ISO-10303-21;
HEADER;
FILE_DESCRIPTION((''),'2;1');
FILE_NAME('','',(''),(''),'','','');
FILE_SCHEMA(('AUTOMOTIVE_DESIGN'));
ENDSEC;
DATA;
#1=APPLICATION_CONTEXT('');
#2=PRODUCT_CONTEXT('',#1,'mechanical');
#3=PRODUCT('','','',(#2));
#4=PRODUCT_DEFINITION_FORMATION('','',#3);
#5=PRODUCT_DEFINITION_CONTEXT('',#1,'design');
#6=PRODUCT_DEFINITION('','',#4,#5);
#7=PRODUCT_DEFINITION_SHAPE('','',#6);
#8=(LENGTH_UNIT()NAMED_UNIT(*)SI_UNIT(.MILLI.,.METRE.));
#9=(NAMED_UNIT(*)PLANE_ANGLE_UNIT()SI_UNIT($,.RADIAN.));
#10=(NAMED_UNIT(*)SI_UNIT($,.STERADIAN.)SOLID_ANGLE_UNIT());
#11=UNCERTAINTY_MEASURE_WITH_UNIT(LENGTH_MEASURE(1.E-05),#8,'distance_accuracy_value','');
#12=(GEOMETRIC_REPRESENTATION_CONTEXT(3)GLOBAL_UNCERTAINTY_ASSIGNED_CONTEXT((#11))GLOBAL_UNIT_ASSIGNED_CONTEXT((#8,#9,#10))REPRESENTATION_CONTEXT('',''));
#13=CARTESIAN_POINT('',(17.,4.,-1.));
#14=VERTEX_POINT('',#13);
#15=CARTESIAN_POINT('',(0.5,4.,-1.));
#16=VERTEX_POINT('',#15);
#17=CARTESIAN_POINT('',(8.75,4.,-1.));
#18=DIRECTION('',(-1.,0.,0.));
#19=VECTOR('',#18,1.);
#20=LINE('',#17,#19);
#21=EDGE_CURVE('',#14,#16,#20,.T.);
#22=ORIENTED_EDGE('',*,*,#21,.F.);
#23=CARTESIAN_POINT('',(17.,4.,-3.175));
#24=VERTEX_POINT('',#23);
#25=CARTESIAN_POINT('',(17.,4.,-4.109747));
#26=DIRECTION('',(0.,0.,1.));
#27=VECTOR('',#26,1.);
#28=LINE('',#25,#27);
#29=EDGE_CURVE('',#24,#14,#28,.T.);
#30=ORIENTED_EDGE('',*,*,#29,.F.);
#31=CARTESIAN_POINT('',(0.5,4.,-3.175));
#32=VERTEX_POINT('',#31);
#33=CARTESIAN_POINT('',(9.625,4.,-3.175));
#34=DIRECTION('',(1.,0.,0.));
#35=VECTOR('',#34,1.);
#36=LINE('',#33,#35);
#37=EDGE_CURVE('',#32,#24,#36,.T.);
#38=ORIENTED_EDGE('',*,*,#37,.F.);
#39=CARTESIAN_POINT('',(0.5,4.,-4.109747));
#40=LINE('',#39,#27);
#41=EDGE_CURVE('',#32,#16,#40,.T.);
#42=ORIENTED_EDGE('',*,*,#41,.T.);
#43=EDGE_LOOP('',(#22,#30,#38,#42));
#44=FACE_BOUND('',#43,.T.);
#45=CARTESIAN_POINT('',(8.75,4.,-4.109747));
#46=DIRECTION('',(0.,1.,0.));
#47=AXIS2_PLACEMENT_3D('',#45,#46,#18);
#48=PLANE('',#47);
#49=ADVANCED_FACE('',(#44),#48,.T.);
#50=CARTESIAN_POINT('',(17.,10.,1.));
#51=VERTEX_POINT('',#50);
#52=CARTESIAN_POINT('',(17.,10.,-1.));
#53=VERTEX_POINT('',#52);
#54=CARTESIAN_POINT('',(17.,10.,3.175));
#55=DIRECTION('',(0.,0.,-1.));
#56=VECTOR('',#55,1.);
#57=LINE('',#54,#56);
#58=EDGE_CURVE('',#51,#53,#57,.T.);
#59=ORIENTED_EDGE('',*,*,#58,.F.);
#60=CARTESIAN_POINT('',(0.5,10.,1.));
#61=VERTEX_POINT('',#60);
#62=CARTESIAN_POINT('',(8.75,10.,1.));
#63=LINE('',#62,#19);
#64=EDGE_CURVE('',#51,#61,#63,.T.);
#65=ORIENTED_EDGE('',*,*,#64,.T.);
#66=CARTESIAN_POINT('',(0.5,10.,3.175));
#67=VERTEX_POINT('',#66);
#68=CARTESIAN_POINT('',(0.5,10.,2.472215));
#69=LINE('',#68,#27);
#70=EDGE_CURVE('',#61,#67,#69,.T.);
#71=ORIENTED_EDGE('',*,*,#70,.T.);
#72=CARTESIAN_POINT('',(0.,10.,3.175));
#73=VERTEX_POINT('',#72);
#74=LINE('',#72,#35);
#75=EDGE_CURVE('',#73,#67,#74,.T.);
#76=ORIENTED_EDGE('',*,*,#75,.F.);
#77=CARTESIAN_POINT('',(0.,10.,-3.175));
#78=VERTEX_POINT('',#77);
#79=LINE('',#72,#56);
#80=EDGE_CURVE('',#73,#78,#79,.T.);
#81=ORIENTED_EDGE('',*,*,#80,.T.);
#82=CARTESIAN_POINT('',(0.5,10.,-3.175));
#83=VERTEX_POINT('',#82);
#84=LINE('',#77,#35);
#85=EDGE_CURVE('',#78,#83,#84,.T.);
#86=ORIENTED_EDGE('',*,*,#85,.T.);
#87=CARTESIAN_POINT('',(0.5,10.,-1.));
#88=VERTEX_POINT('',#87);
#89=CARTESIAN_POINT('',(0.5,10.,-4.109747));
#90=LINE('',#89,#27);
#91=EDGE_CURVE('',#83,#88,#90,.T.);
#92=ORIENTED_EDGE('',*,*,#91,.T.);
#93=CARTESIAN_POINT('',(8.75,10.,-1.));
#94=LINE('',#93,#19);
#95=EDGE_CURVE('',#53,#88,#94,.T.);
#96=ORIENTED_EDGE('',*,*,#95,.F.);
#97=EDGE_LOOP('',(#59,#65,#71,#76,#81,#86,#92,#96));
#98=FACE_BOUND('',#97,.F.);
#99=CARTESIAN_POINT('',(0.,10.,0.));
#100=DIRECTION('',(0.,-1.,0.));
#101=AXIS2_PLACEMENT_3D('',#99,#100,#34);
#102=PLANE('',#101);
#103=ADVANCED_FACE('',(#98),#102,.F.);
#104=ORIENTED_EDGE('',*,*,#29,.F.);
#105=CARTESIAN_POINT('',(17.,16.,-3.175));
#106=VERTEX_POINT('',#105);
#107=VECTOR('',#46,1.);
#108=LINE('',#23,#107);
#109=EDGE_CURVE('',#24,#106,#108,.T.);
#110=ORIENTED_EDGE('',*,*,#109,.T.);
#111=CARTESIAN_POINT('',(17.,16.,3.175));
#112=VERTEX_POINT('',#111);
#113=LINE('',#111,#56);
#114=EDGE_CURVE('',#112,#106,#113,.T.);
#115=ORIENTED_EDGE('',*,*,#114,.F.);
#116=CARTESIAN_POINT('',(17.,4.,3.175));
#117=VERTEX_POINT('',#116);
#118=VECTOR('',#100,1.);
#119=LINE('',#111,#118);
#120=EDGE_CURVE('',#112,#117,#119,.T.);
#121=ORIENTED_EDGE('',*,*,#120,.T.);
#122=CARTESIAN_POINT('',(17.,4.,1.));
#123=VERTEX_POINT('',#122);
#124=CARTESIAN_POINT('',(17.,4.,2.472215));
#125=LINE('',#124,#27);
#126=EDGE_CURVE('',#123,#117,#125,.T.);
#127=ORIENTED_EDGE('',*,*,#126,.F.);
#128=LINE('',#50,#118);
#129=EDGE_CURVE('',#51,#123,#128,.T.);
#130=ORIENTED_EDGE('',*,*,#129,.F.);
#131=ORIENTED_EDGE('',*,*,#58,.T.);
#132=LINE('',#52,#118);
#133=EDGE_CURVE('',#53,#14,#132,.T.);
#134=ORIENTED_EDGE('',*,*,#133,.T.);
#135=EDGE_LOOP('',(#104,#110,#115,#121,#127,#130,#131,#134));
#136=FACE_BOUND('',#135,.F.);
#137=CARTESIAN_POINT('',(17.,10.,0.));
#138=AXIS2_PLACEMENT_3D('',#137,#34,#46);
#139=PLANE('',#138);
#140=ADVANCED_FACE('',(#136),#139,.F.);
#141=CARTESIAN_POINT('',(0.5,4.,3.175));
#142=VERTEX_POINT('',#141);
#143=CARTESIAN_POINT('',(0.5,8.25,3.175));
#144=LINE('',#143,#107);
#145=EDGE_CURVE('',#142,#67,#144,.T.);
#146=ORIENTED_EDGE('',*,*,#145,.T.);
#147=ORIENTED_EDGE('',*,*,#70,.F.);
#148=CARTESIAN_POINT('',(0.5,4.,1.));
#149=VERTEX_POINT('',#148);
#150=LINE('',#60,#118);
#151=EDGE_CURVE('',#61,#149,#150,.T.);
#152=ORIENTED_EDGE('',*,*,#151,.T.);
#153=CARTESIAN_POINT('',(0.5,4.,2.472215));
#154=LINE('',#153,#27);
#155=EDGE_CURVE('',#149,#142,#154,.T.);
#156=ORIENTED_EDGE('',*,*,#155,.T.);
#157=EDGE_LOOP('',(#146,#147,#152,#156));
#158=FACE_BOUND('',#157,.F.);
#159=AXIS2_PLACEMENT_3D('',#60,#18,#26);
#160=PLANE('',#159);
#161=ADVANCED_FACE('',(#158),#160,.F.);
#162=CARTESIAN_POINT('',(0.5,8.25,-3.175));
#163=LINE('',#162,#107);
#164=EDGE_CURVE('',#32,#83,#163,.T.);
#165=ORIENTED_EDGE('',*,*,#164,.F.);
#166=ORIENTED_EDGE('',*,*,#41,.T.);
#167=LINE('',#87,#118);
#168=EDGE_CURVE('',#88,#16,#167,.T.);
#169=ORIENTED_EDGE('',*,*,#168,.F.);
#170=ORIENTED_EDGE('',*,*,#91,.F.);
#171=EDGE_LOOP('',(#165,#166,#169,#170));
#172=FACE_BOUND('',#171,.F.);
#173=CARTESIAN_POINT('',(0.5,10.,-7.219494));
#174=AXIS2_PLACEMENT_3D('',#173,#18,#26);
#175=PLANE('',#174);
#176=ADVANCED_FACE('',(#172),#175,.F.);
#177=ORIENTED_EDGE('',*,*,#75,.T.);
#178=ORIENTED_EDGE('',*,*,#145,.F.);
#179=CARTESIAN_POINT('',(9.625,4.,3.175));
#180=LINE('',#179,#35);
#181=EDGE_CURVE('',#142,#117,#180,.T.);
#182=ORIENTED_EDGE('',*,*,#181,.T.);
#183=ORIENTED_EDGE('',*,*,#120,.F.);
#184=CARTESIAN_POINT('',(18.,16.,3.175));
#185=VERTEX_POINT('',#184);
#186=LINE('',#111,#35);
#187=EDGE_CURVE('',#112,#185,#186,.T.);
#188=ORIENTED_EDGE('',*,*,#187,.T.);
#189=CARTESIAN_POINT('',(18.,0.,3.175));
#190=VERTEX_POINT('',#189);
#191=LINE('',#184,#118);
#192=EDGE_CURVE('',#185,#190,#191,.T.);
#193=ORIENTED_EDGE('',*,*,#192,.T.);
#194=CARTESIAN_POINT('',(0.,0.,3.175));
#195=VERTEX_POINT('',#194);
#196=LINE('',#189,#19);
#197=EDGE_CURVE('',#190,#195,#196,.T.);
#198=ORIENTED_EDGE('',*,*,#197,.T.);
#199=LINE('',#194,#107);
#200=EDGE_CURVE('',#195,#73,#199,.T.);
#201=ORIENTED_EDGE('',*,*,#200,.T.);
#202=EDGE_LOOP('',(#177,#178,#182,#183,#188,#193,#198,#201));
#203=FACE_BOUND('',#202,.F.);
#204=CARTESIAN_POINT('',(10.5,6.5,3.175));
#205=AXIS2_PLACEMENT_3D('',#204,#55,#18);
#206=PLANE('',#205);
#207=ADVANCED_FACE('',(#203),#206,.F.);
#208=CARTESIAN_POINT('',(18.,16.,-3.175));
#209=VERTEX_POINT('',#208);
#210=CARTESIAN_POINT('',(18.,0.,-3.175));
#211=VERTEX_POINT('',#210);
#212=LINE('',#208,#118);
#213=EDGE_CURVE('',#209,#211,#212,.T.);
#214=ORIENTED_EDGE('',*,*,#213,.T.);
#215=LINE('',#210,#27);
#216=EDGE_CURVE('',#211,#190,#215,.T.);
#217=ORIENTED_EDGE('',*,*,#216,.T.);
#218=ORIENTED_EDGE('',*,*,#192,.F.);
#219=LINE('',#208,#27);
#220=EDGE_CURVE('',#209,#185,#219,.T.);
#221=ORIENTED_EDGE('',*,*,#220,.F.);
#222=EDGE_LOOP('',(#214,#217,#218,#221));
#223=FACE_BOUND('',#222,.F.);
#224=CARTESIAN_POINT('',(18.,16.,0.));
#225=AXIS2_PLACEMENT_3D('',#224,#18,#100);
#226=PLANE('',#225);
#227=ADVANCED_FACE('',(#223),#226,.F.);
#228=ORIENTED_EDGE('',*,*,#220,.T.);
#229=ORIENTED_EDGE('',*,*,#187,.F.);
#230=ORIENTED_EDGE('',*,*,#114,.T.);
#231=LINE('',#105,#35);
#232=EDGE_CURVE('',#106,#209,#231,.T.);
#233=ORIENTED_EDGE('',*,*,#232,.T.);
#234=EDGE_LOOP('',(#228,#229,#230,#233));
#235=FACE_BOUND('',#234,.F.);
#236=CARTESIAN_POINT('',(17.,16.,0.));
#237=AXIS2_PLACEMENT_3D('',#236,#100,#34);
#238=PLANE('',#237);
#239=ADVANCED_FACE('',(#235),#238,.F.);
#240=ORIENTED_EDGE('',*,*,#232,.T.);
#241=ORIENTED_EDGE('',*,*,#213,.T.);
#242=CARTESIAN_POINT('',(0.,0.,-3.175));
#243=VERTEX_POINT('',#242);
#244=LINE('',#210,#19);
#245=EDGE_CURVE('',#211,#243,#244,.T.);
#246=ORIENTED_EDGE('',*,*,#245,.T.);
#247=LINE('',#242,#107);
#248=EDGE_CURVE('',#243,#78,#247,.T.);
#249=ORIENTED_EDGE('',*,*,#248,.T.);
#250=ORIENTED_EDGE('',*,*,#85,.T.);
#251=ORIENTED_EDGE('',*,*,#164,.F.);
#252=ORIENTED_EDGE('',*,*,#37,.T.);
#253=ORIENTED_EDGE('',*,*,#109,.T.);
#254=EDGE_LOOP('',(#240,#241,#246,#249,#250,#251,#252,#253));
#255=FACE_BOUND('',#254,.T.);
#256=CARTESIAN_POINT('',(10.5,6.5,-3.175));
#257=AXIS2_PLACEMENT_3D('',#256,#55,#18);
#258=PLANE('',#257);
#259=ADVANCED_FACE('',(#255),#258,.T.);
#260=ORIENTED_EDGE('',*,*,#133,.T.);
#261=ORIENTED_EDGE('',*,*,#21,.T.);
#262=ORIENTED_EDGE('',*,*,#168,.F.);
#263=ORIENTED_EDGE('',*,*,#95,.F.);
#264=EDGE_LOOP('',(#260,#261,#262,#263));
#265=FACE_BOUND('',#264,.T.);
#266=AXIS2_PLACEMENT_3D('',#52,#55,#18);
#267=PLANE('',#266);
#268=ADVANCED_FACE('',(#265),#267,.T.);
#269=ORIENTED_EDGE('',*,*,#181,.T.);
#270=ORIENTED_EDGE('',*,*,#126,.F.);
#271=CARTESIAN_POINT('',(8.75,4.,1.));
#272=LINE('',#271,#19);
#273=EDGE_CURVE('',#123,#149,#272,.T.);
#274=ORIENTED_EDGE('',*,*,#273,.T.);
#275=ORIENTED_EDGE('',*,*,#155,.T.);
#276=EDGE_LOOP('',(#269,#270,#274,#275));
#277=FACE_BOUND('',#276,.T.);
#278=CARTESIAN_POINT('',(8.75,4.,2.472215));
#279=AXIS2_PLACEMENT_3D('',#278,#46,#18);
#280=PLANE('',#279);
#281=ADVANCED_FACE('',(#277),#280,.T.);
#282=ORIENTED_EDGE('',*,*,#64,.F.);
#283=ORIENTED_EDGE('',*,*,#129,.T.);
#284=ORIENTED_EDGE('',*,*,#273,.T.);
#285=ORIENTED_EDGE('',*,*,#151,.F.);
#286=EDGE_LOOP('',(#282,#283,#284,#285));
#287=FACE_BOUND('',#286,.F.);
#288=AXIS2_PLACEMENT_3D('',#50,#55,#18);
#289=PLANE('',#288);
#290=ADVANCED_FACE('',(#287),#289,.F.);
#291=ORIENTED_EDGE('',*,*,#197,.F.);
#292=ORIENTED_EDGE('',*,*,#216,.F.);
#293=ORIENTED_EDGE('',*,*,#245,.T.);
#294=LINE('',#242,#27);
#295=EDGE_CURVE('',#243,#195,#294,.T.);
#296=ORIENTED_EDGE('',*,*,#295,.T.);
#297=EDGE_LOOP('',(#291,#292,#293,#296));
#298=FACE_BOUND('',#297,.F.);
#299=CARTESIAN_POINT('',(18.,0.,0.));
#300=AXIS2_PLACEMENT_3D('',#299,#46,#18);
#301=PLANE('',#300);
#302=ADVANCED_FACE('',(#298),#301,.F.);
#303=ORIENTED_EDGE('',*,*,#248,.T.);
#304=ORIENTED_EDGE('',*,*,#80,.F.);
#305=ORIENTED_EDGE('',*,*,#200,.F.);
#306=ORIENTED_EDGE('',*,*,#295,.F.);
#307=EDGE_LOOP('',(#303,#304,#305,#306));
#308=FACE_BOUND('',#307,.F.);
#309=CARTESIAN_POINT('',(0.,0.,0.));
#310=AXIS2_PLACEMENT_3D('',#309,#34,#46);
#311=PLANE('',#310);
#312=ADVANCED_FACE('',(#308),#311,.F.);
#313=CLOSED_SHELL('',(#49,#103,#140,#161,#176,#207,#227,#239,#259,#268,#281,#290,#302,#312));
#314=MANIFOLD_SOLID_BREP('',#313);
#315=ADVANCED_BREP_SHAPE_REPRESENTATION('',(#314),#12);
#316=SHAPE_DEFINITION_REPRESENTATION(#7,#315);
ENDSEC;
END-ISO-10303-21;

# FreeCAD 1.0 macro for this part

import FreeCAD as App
import Part
import Sketcher
Q = App.Units.Quantity

doc = App.newDocument("Part")
body = doc.addObject("PartDesign::Body", "Body")

# Sketch on XY plane
sketch1 = body.newObject("Sketcher::SketchObject", "Sketch")
sketch1.AttachmentSupport = (doc.getObject("XY_Plane"), [""])
sketch1.MapMode = "FlatFace"
sketch1.addGeometry(Part.LineSegment(App.Vector(0, 10, 0), App.Vector(0, 0, 0)), False)
sketch1.addGeometry(Part.LineSegment(App.Vector(0, 0, 0), App.Vector(18, 0, 0)), False)
sketch1.addGeometry(Part.LineSegment(App.Vector(18, 0, 0), App.Vector(18, 16, 0)), False)
sketch1.addGeometry(Part.LineSegment(App.Vector(18, 16, 0), App.Vector(17, 16, 0)), False)
sketch1.addGeometry(Part.LineSegment(App.Vector(17, 16, 0), App.Vector(17, 10, 0)), False)
sketch1.addGeometry(Part.LineSegment(App.Vector(17, 10, 0), App.Vector(0, 10, 0)), False)
sketch1.addConstraint(Sketcher.Constraint("Coincident", 0, 2, 1, 1))
sketch1.addConstraint(Sketcher.Constraint("Coincident", 1, 2, 2, 1))
sketch1.addConstraint(Sketcher.Constraint("Coincident", 2, 2, 3, 1))
sketch1.addConstraint(Sketcher.Constraint("Coincident", 3, 2, 4, 1))
sketch1.addConstraint(Sketcher.Constraint("Coincident", 4, 2, 5, 1))
sketch1.addConstraint(Sketcher.Constraint("Coincident", 5, 2, 0, 1))
sketch1.addConstraint(Sketcher.Constraint("Vertical", 0))
sketch1.addConstraint(Sketcher.Constraint("Horizontal", 1))
sketch1.addConstraint(Sketcher.Constraint("Vertical", 2))
sketch1.addConstraint(Sketcher.Constraint("Horizontal", 3))
sketch1.addConstraint(Sketcher.Constraint("Vertical", 4))
sketch1.addConstraint(Sketcher.Constraint("Horizontal", 5))
sketch1.addConstraint(Sketcher.Constraint("Coincident", 0, 2, -1, 1))
sketch1.addConstraint(Sketcher.Constraint("DistanceX", 1, 1, 1, 2, Q("18 mm")))
sketch1.addConstraint(Sketcher.Constraint("DistanceX", 3, 2, 3, 1, Q("1 mm")))
sketch1.addConstraint(Sketcher.Constraint("DistanceY", 0, 2, 0, 1, Q("10 mm")))
sketch1.addConstraint(Sketcher.Constraint("DistanceY", 2, 1, 2, 2, Q("16 mm")))
pad1 = body.newObject("PartDesign::Pad", "Pad")
pad1.Profile = sketch1
pad1.Length = 6.35
pad1.Midplane = True

# Sketch on XZ plane
sketch2 = body.newObject("Sketcher::SketchObject", "Sketch001")
sketch2.AttachmentSupport = (doc.getObject("XZ_Plane"), [""])
sketch2.MapMode = "FlatFace"
sketch2.AttachmentOffset = App.Placement(App.Vector(0, 0, -10), App.Rotation())
sketch2.addGeometry(Part.LineSegment(App.Vector(17, 3.9, 0), App.Vector(17, 1, 0)), False)
sketch2.addGeometry(Part.LineSegment(App.Vector(17, 1, 0), App.Vector(0.5, 1, 0)), False)
sketch2.addGeometry(Part.LineSegment(App.Vector(0.5, 1, 0), App.Vector(0.5, 3.9, 0)), False)
sketch2.addGeometry(Part.LineSegment(App.Vector(0.5, 3.9, 0), App.Vector(17, 3.9, 0)), False)
sketch2.addGeometry(Part.LineSegment(App.Vector(17, -1, 0), App.Vector(17, -7.2, 0)), False)
sketch2.addGeometry(Part.LineSegment(App.Vector(17, -7.2, 0), App.Vector(0.5, -7.2, 0)), False)
sketch2.addGeometry(Part.LineSegment(App.Vector(0.5, -7.2, 0), App.Vector(0.5, -1, 0)), False)
sketch2.addGeometry(Part.LineSegment(App.Vector(0.5, -1, 0), App.Vector(17, -1, 0)), False)
sketch2.addConstraint(Sketcher.Constraint("Coincident", 0, 2, 1, 1))
sketch2.addConstraint(Sketcher.Constraint("Coincident", 1, 2, 2, 1))
sketch2.addConstraint(Sketcher.Constraint("Coincident", 2, 2, 3, 1))
sketch2.addConstraint(Sketcher.Constraint("Coincident", 3, 2, 0, 1))
sketch2.addConstraint(Sketcher.Constraint("Coincident", 4, 2, 5, 1))
sketch2.addConstraint(Sketcher.Constraint("Coincident", 5, 2, 6, 1))
sketch2.addConstraint(Sketcher.Constraint("Coincident", 6, 2, 7, 1))
sketch2.addConstraint(Sketcher.Constraint("Coincident", 7, 2, 4, 1))
sketch2.addConstraint(Sketcher.Constraint("Vertical", 0))
sketch2.addConstraint(Sketcher.Constraint("Horizontal", 1))
sketch2.addConstraint(Sketcher.Constraint("Vertical", 2))
sketch2.addConstraint(Sketcher.Constraint("Horizontal", 3))
sketch2.addConstraint(Sketcher.Constraint("Vertical", 4))
sketch2.addConstraint(Sketcher.Constraint("Horizontal", 5))
sketch2.addConstraint(Sketcher.Constraint("Vertical", 6))
sketch2.addConstraint(Sketcher.Constraint("Horizontal", 7))
sketch2.addConstraint(Sketcher.Constraint("Symmetric", 1, 2, 6, 2, -1))
sketch2.addConstraint(Sketcher.Constraint("Vertical", 3, 2, 4, 2))
sketch2.addConstraint(Sketcher.Constraint("DistanceX", 1, 2, 1, 1, Q("16.5 mm")))
sketch2.addConstraint(Sketcher.Constraint("DistanceX", -1, 1, 0, 2, Q("17 mm")))
sketch2.addConstraint(Sketcher.Constraint("DistanceY", -1, 1, 0, 2, Q("1 mm")))
sketch2.addConstraint(Sketcher.Constraint("DistanceY", 0, 2, 0, 1, Q("2.94443 mm")))
sketch2.addConstraint(Sketcher.Constraint("DistanceY", 4, 2, 4, 1, Q("6.219495 mm")))
pocket1 = body.newObject("PartDesign::Pocket", "Pocket")
pocket1.Profile = sketch2
pocket1.Length = 6
pocket1.Reversed = True

doc.recompute()
